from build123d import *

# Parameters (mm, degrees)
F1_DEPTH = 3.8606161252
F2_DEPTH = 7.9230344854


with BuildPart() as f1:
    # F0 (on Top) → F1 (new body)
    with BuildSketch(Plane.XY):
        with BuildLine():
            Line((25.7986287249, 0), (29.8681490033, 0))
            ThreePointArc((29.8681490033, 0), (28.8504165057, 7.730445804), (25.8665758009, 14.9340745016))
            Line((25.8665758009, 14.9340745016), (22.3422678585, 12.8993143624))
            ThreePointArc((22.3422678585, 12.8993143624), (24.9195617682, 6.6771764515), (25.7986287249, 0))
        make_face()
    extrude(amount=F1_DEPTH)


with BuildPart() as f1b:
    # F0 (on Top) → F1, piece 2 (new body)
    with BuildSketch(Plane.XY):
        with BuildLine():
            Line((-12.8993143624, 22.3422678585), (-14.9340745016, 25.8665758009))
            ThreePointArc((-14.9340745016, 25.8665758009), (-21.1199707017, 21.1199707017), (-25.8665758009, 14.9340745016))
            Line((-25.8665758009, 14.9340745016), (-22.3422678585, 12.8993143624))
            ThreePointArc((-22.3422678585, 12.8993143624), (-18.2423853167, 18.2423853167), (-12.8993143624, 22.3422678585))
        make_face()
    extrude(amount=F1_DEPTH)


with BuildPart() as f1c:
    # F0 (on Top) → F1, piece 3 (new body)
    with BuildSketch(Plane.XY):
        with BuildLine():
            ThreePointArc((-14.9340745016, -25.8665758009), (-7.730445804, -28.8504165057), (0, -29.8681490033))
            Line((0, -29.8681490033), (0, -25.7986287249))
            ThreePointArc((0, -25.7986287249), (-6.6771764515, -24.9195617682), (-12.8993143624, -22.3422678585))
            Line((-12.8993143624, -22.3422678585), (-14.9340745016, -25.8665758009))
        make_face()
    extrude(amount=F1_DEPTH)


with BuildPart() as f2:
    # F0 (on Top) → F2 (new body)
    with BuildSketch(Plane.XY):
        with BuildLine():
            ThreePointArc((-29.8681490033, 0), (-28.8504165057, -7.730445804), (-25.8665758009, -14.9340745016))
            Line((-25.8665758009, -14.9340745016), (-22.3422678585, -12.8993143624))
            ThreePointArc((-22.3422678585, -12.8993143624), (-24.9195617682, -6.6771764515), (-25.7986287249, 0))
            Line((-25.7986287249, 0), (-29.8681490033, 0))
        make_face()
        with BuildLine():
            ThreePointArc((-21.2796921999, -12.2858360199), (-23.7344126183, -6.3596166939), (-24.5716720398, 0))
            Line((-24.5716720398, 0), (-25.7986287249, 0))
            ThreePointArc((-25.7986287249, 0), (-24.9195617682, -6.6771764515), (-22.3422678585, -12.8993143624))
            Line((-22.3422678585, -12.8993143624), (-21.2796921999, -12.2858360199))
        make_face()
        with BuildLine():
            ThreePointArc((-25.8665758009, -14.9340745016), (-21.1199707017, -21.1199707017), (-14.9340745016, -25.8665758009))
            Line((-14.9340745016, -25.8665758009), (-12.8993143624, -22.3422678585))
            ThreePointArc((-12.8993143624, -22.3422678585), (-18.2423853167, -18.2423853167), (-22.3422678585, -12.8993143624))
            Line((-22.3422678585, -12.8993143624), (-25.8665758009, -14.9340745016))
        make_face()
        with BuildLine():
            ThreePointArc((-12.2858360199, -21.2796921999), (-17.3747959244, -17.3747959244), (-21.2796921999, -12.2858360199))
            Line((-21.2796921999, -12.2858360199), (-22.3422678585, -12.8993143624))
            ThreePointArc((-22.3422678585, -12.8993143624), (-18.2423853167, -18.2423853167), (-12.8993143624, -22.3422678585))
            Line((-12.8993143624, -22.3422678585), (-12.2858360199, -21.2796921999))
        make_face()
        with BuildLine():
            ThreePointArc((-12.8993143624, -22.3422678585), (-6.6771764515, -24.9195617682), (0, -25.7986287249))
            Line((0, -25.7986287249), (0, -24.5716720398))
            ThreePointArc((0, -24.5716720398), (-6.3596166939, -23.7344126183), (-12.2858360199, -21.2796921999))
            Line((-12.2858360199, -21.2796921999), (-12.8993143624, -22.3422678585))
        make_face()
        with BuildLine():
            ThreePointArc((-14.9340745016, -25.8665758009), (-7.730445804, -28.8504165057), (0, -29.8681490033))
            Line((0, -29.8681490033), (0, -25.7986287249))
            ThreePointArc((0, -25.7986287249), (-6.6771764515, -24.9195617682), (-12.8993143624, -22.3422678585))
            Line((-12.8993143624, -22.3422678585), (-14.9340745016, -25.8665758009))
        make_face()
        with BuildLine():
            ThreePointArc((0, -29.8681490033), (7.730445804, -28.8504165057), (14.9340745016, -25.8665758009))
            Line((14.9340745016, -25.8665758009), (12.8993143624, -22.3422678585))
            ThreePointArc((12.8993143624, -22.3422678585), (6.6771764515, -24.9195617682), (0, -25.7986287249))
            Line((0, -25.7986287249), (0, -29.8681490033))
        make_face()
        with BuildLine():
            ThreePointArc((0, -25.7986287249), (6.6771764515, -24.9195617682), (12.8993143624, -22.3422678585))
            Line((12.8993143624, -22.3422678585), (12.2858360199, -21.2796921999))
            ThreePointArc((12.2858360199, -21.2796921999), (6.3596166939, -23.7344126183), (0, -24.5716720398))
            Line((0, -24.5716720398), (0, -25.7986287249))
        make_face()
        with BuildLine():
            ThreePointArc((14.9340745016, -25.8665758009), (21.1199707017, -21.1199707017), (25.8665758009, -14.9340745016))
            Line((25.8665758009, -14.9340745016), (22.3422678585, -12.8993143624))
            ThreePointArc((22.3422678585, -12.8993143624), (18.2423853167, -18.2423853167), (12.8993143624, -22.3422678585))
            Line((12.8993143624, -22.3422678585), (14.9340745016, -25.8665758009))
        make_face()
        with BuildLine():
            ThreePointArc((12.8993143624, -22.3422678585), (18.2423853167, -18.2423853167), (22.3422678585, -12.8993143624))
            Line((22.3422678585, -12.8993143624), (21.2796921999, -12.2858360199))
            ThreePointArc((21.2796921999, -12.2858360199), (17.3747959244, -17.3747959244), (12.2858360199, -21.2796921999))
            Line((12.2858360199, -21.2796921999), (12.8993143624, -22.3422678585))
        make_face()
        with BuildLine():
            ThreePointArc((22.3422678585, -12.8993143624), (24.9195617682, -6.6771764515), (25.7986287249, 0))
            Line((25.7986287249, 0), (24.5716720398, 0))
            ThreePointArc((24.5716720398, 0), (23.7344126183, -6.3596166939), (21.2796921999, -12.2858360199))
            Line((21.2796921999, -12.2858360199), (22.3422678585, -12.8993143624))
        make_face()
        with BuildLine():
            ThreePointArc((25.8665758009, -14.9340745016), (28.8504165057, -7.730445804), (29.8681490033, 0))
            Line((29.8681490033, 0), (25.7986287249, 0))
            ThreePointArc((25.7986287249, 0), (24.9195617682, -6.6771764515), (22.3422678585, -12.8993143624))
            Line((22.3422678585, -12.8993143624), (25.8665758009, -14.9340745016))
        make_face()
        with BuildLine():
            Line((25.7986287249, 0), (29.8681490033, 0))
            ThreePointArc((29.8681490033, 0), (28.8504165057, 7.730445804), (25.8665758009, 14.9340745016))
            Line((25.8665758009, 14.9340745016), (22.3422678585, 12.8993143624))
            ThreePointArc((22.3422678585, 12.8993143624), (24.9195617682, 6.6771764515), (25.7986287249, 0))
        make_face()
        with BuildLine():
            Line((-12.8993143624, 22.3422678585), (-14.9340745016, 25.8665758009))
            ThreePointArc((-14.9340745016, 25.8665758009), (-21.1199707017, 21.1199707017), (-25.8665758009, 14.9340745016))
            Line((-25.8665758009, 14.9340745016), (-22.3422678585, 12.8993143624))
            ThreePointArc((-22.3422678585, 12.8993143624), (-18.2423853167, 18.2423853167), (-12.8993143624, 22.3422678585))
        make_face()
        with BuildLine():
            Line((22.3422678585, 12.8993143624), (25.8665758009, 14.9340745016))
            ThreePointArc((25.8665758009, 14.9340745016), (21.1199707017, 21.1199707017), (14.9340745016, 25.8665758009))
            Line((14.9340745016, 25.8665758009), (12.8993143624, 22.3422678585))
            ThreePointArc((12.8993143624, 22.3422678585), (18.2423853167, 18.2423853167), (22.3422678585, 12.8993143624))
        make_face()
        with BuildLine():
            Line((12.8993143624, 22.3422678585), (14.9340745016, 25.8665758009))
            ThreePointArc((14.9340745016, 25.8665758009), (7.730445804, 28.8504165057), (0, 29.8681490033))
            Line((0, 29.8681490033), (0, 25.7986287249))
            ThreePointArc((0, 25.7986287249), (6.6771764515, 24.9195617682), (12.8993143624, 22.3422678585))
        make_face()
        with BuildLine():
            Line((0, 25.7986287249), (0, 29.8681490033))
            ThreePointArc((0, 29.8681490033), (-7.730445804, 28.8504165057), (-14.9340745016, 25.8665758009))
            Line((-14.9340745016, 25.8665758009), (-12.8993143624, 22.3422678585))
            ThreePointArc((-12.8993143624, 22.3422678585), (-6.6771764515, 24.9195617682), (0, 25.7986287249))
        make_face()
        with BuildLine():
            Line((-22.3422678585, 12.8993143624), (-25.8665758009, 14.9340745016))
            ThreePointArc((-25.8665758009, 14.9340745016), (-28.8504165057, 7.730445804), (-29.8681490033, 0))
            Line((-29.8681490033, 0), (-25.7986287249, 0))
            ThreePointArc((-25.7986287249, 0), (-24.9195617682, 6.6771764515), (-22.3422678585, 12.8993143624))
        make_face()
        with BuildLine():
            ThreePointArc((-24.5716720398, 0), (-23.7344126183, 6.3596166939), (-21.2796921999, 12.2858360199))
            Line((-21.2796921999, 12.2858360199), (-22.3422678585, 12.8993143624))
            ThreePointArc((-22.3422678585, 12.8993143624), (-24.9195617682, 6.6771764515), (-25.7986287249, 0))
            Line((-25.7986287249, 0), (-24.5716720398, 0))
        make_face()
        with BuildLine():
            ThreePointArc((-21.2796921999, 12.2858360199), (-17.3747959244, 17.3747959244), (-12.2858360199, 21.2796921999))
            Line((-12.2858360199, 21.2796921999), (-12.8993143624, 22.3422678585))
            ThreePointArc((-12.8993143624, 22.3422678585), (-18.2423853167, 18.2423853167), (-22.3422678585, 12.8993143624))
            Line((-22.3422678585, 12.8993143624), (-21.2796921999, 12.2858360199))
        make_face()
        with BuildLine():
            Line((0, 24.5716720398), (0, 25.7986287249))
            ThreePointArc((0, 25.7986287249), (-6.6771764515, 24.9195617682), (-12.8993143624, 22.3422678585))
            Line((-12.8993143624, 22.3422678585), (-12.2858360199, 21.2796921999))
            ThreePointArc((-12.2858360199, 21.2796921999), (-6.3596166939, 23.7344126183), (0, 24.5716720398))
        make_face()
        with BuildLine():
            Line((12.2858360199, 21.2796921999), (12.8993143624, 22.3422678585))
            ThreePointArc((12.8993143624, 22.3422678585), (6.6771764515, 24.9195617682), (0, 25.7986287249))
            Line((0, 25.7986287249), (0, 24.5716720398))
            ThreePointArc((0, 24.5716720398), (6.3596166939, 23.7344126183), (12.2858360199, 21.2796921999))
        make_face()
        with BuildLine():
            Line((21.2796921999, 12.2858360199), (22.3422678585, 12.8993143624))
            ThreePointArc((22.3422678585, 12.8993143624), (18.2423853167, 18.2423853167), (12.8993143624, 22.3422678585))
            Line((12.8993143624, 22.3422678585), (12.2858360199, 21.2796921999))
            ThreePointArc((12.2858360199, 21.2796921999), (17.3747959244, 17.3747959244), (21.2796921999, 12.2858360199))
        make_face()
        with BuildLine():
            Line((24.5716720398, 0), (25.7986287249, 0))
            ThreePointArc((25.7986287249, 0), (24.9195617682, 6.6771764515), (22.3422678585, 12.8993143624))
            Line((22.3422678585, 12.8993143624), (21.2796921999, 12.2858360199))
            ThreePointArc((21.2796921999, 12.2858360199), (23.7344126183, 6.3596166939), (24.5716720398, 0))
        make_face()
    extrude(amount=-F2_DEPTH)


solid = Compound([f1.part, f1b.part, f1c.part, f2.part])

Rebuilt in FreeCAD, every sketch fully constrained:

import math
import FreeCAD as App
import Part
import Sketcher
from FreeCAD import Vector
Q = App.Units.Quantity

doc = App.newDocument("Part")
body = doc.addObject("PartDesign::Body", "Body")

# Sketch on XY plane
sketch1 = doc.addObject("Sketcher::SketchObject", "Sketch")
body.addObject(sketch1)
sketch1.AttachmentSupport = (doc.XY_Plane, [""])
sketch1.MapMode = "FlatFace"
sketch1.addGeometry(Part.LineSegment(Vector(25.8, 0, 0), Vector(29.9, 0, 0)), False)
sketch1.addGeometry(Part.ArcOfCircle(Part.Circle(Vector(0, 0, 0), Vector(0, 0, 1), 29.9), math.radians(0), math.radians(30)), False)
sketch1.addGeometry(Part.LineSegment(Vector(25.9, 14.9, 0), Vector(22.3, 12.9, 0)), False)
sketch1.addGeometry(Part.ArcOfCircle(Part.Circle(Vector(0, 0, 0), Vector(0, 0, 1), 25.8), math.radians(0), math.radians(30)), False)
sketch1.addConstraint(Sketcher.Constraint("Coincident", 0, 2, 1, 1))
sketch1.addConstraint(Sketcher.Constraint("Coincident", 1, 2, 2, 1))
sketch1.addConstraint(Sketcher.Constraint("Coincident", 2, 2, 3, 2))
sketch1.addConstraint(Sketcher.Constraint("Coincident", 3, 1, 0, 1))
sketch1.addConstraint(Sketcher.Constraint("Horizontal", 0))
sketch1.addConstraint(Sketcher.Constraint("Coincident", 1, 3, -1, 1))
sketch1.addConstraint(Sketcher.Constraint("Coincident", 3, 3, -1, 1))
sketch1.addConstraint(Sketcher.Constraint("PointOnObject", 0, 2, -1))
sketch1.addConstraint(Sketcher.Constraint("Angle", 2, Q("-150 deg")))
sketch1.addConstraint(Sketcher.Constraint("Radius", 1, Q("29.868149 mm")))
sketch1.addConstraint(Sketcher.Constraint("Radius", 3, Q("25.798629 mm")))
sketch1.addConstraint(Sketcher.Constraint("DistanceX", 2, 2, 0, 2, Q("7.525881 mm")))
pad1 = doc.addObject("PartDesign::Pad", "Pad")
body.addObject(pad1)
pad1.Profile = sketch1
pad1.Length = 3.860616
body2 = doc.addObject("PartDesign::Body", "Body001")

# Sketch on XY plane
sketch2 = doc.addObject("Sketcher::SketchObject", "Sketch001")
body2.addObject(sketch2)
sketch2.AttachmentSupport = (doc.getObject("XY_Plane001"), [""])
sketch2.MapMode = "FlatFace"
sketch2.addGeometry(Part.LineSegment(Vector(-12.9, 22.3, 0), Vector(-14.9, 25.9, 0)), False)
sketch2.addGeometry(Part.ArcOfCircle(Part.Circle(Vector(0, 0, 0), Vector(0, 0, 1), 29.9), math.radians(120), math.radians(150)), False)
sketch2.addGeometry(Part.LineSegment(Vector(-25.9, 14.9, 0), Vector(-22.3, 12.9, 0)), False)
sketch2.addGeometry(Part.ArcOfCircle(Part.Circle(Vector(0, 0, 0), Vector(0, 0, 1), 25.8), math.radians(120), math.radians(150)), False)
sketch2.addConstraint(Sketcher.Constraint("Coincident", 0, 2, 1, 1))
sketch2.addConstraint(Sketcher.Constraint("Coincident", 1, 2, 2, 1))
sketch2.addConstraint(Sketcher.Constraint("Coincident", 2, 2, 3, 2))
sketch2.addConstraint(Sketcher.Constraint("Coincident", 3, 1, 0, 1))
sketch2.addConstraint(Sketcher.Constraint("Coincident", 1, 3, -1, 1))
sketch2.addConstraint(Sketcher.Constraint("Coincident", 3, 3, -1, 1))
sketch2.addConstraint(Sketcher.Constraint("Angle", 0, Q("120 deg")))
sketch2.addConstraint(Sketcher.Constraint("Angle", 2, Q("-30 deg")))
sketch2.addConstraint(Sketcher.Constraint("Radius", 1, Q("29.868149 mm")))
sketch2.addConstraint(Sketcher.Constraint("Radius", 3, Q("25.798629 mm")))
sketch2.addConstraint(Sketcher.Constraint("DistanceX", 1, 2, 0, 2, Q("10.932501 mm")))
sketch2.addConstraint(Sketcher.Constraint("DistanceY", 1, 2, 0, 2, Q("10.932501 mm")))
pad2 = doc.addObject("PartDesign::Pad", "Pad001")
body2.addObject(pad2)
pad2.Profile = sketch2
pad2.Length = 3.860616
body3 = doc.addObject("PartDesign::Body", "Body002")

# Sketch on XY plane
sketch3 = doc.addObject("Sketcher::SketchObject", "Sketch002")
body3.addObject(sketch3)
sketch3.AttachmentSupport = (doc.getObject("XY_Plane002"), [""])
sketch3.MapMode = "FlatFace"
sketch3.addGeometry(Part.ArcOfCircle(Part.Circle(Vector(0, 0, 0), Vector(0, 0, 1), 29.9), math.radians(-120), math.radians(-90)), False)
sketch3.addGeometry(Part.LineSegment(Vector(0, -29.9, 0), Vector(0, -25.8, 0)), False)
sketch3.addGeometry(Part.ArcOfCircle(Part.Circle(Vector(0, 0, 0), Vector(0, 0, 1), 25.8), math.radians(-120), math.radians(-90)), False)
sketch3.addGeometry(Part.LineSegment(Vector(-12.9, -22.3, 0), Vector(-14.9, -25.9, 0)), False)
sketch3.addConstraint(Sketcher.Constraint("Coincident", 0, 2, 1, 1))
sketch3.addConstraint(Sketcher.Constraint("Coincident", 1, 2, 2, 2))
sketch3.addConstraint(Sketcher.Constraint("Coincident", 2, 1, 3, 1))
sketch3.addConstraint(Sketcher.Constraint("Coincident", 3, 2, 0, 1))
sketch3.addConstraint(Sketcher.Constraint("Vertical", 1))
sketch3.addConstraint(Sketcher.Constraint("Coincident", 0, 3, -1, 1))
sketch3.addConstraint(Sketcher.Constraint("Coincident", 2, 3, -1, 1))
sketch3.addConstraint(Sketcher.Constraint("PointOnObject", 0, 2, -2))
sketch3.addConstraint(Sketcher.Constraint("Angle", 3, Q("-120 deg")))
sketch3.addConstraint(Sketcher.Constraint("Radius", 0, Q("29.868149 mm")))
sketch3.addConstraint(Sketcher.Constraint("Radius", 2, Q("25.798629 mm")))
sketch3.addConstraint(Sketcher.Constraint("DistanceY", 1, 2, 2, 1, Q("3.456361 mm")))
pad3 = doc.addObject("PartDesign::Pad", "Pad002")
body3.addObject(pad3)
pad3.Profile = sketch3
pad3.Length = 3.860616
body4 = doc.addObject("PartDesign::Body", "Body003")

# Sketch on XY plane
sketch4 = doc.addObject("Sketcher::SketchObject", "Sketch003")
body4.addObject(sketch4)
sketch4.AttachmentSupport = (doc.getObject("XY_Plane003"), [""])
sketch4.MapMode = "FlatFace"
sketch4.addGeometry(Part.ArcOfCircle(Part.Circle(Vector(0, 0, 0), Vector(0, 0, 1), 30), math.radians(180), math.radians(210)), False)
sketch4.addGeometry(Part.ArcOfCircle(Part.Circle(Vector(0, 0, 0), Vector(0, 0, 1), 30), math.radians(-150), math.radians(-120)), False)
sketch4.addGeometry(Part.ArcOfCircle(Part.Circle(Vector(0, 0, 0), Vector(0, 0, 1), 30), math.radians(-120), math.radians(-90)), False)
sketch4.addGeometry(Part.ArcOfCircle(Part.Circle(Vector(0, 0, 0), Vector(0, 0, 1), 30), math.radians(-90), math.radians(-60)), False)
sketch4.addGeometry(Part.ArcOfCircle(Part.Circle(Vector(0, 0, 0), Vector(0, 0, 1), 30), math.radians(-60), math.radians(-30)), False)
sketch4.addGeometry(Part.ArcOfCircle(Part.Circle(Vector(0, 0, 0), Vector(0, 0, 1), 30), math.radians(-30), math.radians(0)), False)
sketch4.addGeometry(Part.ArcOfCircle(Part.Circle(Vector(0, 0, 0), Vector(0, 0, 1), 30), math.radians(0), math.radians(30)), False)
sketch4.addGeometry(Part.ArcOfCircle(Part.Circle(Vector(0, 0, 0), Vector(0, 0, 1), 30), math.radians(30), math.radians(60)), False)
sketch4.addGeometry(Part.ArcOfCircle(Part.Circle(Vector(0, 0, 0), Vector(0, 0, 1), 30), math.radians(60), math.radians(90)), False)
sketch4.addGeometry(Part.ArcOfCircle(Part.Circle(Vector(0, 0, 0), Vector(0, 0, 1), 30), math.radians(90), math.radians(120)), False)
sketch4.addGeometry(Part.ArcOfCircle(Part.Circle(Vector(0, 0, 0), Vector(0, 0, 1), 30), math.radians(120), math.radians(150)), False)
sketch4.addGeometry(Part.ArcOfCircle(Part.Circle(Vector(0, 0, 0), Vector(0, 0, 1), 30), math.radians(150), math.radians(180)), False)
sketch4.addGeometry(Part.ArcOfCircle(Part.Circle(Vector(0, 0, 0), Vector(0, 0, 1), 25), math.radians(-30), math.radians(0)), False)
sketch4.addGeometry(Part.ArcOfCircle(Part.Circle(Vector(0, 0, 0), Vector(0, 0, 1), 25), math.radians(-60), math.radians(-30)), False)
sketch4.addGeometry(Part.ArcOfCircle(Part.Circle(Vector(0, 0, 0), Vector(0, 0, 1), 25), math.radians(-90), math.radians(-60)), False)
sketch4.addGeometry(Part.ArcOfCircle(Part.Circle(Vector(0, 0, 0), Vector(0, 0, 1), 25), math.radians(-120), math.radians(-90)), False)
sketch4.addGeometry(Part.ArcOfCircle(Part.Circle(Vector(0, 0, 0), Vector(0, 0, 1), 25), math.radians(-150), math.radians(-120)), False)
sketch4.addGeometry(Part.ArcOfCircle(Part.Circle(Vector(0, 0, 0), Vector(0, 0, 1), 25), math.radians(180), math.radians(210)), False)
sketch4.addGeometry(Part.ArcOfCircle(Part.Circle(Vector(0, 0, 0), Vector(0, 0, 1), 25), math.radians(150), math.radians(180)), False)
sketch4.addGeometry(Part.ArcOfCircle(Part.Circle(Vector(0, 0, 0), Vector(0, 0, 1), 25), math.radians(120), math.radians(150)), False)
sketch4.addGeometry(Part.ArcOfCircle(Part.Circle(Vector(0, 0, 0), Vector(0, 0, 1), 25), math.radians(90), math.radians(120)), False)
sketch4.addGeometry(Part.ArcOfCircle(Part.Circle(Vector(0, 0, 0), Vector(0, 0, 1), 25), math.radians(60), math.radians(90)), False)
sketch4.addGeometry(Part.ArcOfCircle(Part.Circle(Vector(0, 0, 0), Vector(0, 0, 1), 25), math.radians(30), math.radians(60)), False)
sketch4.addGeometry(Part.ArcOfCircle(Part.Circle(Vector(0, 0, 0), Vector(0, 0, 1), 25), math.radians(0), math.radians(30)), False)
sketch4.addConstraint(Sketcher.Constraint("Tangent", 0, 2, 1, 1))
sketch4.addConstraint(Sketcher.Constraint("Tangent", 1, 2, 2, 1))
sketch4.addConstraint(Sketcher.Constraint("Tangent", 2, 2, 3, 1))
sketch4.addConstraint(Sketcher.Constraint("Tangent", 3, 2, 4, 1))
sketch4.addConstraint(Sketcher.Constraint("Tangent", 4, 2, 5, 1))
sketch4.addConstraint(Sketcher.Constraint("Tangent", 5, 2, 6, 1))
sketch4.addConstraint(Sketcher.Constraint("Tangent", 6, 2, 7, 1))
sketch4.addConstraint(Sketcher.Constraint("Tangent", 7, 2, 8, 1))
sketch4.addConstraint(Sketcher.Constraint("Tangent", 8, 2, 9, 1))
sketch4.addConstraint(Sketcher.Constraint("Tangent", 9, 2, 10, 1))
sketch4.addConstraint(Sketcher.Constraint("Tangent", 10, 2, 11, 1))
sketch4.addConstraint(Sketcher.Constraint("Tangent", 11, 2, 0, 1))
sketch4.addConstraint(Sketcher.Constraint("Tangent", 12, 1, 13, 2))
sketch4.addConstraint(Sketcher.Constraint("Tangent", 13, 1, 14, 2))
sketch4.addConstraint(Sketcher.Constraint("Tangent", 14, 1, 15, 2))
sketch4.addConstraint(Sketcher.Constraint("Tangent", 15, 1, 16, 2))
sketch4.addConstraint(Sketcher.Constraint("Tangent", 16, 1, 17, 2))
sketch4.addConstraint(Sketcher.Constraint("Tangent", 17, 1, 18, 2))
sketch4.addConstraint(Sketcher.Constraint("Tangent", 18, 1, 19, 2))
sketch4.addConstraint(Sketcher.Constraint("Tangent", 19, 1, 20, 2))
sketch4.addConstraint(Sketcher.Constraint("Tangent", 20, 1, 21, 2))
sketch4.addConstraint(Sketcher.Constraint("Tangent", 21, 1, 22, 2))
sketch4.addConstraint(Sketcher.Constraint("Tangent", 22, 1, 23, 2))
sketch4.addConstraint(Sketcher.Constraint("Tangent", 23, 1, 12, 2))
sketch4.addConstraint(Sketcher.Constraint("Coincident", 0, 3, -1, 1))
sketch4.addConstraint(Sketcher.Constraint("Coincident", 2, 3, -1, 1))
sketch4.addConstraint(Sketcher.Constraint("Coincident", 4, 3, -1, 1))
sketch4.addConstraint(Sketcher.Constraint("Coincident", 6, 3, -1, 1))
sketch4.addConstraint(Sketcher.Constraint("Coincident", 8, 3, -1, 1))
sketch4.addConstraint(Sketcher.Constraint("Coincident", 12, 3, -1, 1))
sketch4.addConstraint(Sketcher.Constraint("Coincident", 14, 3, -1, 1))
sketch4.addConstraint(Sketcher.Constraint("Coincident", 16, 3, -1, 1))
sketch4.addConstraint(Sketcher.Constraint("Coincident", 18, 3, -1, 1))
sketch4.addConstraint(Sketcher.Constraint("Coincident", 20, 3, -1, 1))
sketch4.addConstraint(Sketcher.Constraint("Equal", 8, 9))
sketch4.addConstraint(Sketcher.Constraint("Equal", 20, 21))
sketch4.addConstraint(Sketcher.Constraint("PointOnObject", 2, 2, -2))
sketch4.addConstraint(Sketcher.Constraint("PointOnObject", 5, 2, -1))
sketch4.addConstraint(Sketcher.Constraint("PointOnObject", 8, 2, -2))
sketch4.addConstraint(Sketcher.Constraint("PointOnObject", 11, 2, -1))
sketch4.addConstraint(Sketcher.Constraint("PointOnObject", 14, 1, -2))
sketch4.addConstraint(Sketcher.Constraint("PointOnObject", 17, 1, -1))
sketch4.addConstraint(Sketcher.Constraint("PointOnObject", 20, 1, -2))
sketch4.addConstraint(Sketcher.Constraint("PointOnObject", 23, 1, -1))
sketch4.addConstraint(Sketcher.Constraint("Horizontal", 1, 2, 3, 2))
sketch4.addConstraint(Sketcher.Constraint("Horizontal", 0, 2, 4, 2))
sketch4.addConstraint(Sketcher.Constraint("Horizontal", 7, 2, 9, 2))
sketch4.addConstraint(Sketcher.Constraint("Horizontal", 6, 2, 10, 2))
sketch4.addConstraint(Sketcher.Constraint("Horizontal", 13, 1, 15, 1))
sketch4.addConstraint(Sketcher.Constraint("Horizontal", 12, 1, 16, 1))
sketch4.addConstraint(Sketcher.Constraint("Horizontal", 19, 1, 21, 1))
sketch4.addConstraint(Sketcher.Constraint("Horizontal", 18, 1, 22, 1))
sketch4.addConstraint(Sketcher.Constraint("Vertical", 4, 2, 6, 2))
sketch4.addConstraint(Sketcher.Constraint("Vertical", 3, 2, 7, 2))
sketch4.addConstraint(Sketcher.Constraint("Vertical", 16, 1, 18, 1))
sketch4.addConstraint(Sketcher.Constraint("Vertical", 15, 1, 19, 1))
sketch4.addConstraint(Sketcher.Constraint("Radius", 0, Q("29.868149 mm")))
sketch4.addConstraint(Sketcher.Constraint("Radius", 12, Q("24.571672 mm")))
sketch4.addConstraint(Sketcher.Constraint("DistanceX", 0, 2, 1, 2, Q("10.932501 mm")))
sketch4.addConstraint(Sketcher.Constraint("DistanceY", 1, 2, 0, 2, Q("10.932501 mm")))
sketch4.addConstraint(Sketcher.Constraint("DistanceY", 4, 2, 12, 1, Q("2.648238 mm")))
sketch4.addConstraint(Sketcher.Constraint("DistanceX", 13, 1, 3, 2, Q("2.648238 mm")))
pad4 = doc.addObject("PartDesign::Pad", "Pad003")
body4.addObject(pad4)
pad4.Profile = sketch4
pad4.Length = 7.923034
pad4.Reversed = True

doc.recompute()
